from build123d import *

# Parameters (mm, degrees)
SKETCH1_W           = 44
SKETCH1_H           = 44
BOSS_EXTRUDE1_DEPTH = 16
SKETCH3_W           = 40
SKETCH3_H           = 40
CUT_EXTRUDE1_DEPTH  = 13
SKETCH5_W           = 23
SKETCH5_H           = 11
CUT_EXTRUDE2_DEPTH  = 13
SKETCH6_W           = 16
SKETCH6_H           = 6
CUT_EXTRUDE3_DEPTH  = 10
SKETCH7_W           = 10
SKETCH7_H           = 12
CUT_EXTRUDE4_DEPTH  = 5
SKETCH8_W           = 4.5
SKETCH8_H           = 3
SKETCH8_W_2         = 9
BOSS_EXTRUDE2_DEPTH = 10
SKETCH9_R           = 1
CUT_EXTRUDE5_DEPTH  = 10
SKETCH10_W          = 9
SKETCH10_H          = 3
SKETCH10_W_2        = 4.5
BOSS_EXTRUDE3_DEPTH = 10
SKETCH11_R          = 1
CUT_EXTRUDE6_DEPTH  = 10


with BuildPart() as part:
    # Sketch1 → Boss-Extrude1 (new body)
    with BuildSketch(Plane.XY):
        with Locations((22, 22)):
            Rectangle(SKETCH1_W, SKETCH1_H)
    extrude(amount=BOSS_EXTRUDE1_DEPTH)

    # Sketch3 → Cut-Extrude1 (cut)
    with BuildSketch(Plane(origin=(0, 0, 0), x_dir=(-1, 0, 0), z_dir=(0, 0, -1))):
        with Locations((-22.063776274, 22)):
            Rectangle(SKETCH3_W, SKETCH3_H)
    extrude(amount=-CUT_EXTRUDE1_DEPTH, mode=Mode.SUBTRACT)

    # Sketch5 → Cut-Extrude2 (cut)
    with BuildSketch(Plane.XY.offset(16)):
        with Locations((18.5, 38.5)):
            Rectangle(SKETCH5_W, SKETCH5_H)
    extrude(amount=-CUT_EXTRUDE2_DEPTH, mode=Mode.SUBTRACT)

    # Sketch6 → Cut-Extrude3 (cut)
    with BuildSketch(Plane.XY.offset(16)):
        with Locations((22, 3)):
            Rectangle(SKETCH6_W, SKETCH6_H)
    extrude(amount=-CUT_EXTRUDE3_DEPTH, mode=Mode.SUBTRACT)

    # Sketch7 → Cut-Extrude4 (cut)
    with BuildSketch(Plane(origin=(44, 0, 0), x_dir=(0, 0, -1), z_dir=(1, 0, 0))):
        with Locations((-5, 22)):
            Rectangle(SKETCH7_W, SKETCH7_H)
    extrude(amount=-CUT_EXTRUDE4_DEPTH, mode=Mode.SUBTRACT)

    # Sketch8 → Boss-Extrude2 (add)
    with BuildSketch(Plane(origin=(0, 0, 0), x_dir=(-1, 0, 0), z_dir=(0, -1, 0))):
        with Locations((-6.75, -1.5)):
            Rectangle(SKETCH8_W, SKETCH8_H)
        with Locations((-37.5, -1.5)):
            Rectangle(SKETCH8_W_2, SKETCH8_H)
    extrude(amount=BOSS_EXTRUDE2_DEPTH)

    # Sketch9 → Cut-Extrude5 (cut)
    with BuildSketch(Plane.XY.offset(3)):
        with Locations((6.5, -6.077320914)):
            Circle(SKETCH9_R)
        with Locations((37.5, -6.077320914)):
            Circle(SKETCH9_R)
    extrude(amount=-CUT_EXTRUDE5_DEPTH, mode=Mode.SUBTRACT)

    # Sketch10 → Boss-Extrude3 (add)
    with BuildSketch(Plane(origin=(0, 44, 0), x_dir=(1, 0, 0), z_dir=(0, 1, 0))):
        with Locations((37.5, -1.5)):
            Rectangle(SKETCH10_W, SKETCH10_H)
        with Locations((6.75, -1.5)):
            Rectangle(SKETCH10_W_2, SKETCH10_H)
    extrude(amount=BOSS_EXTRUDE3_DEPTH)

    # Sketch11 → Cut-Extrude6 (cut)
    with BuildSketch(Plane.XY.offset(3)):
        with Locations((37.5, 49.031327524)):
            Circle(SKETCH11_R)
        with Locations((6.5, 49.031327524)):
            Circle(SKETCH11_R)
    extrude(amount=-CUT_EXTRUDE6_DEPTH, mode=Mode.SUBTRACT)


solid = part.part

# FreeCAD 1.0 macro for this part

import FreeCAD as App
import Part
import Sketcher
Q = App.Units.Quantity

doc = App.newDocument("Part")
body = doc.addObject("PartDesign::Body", "Body")

# Sketch on XY plane
sketch1 = doc.addObject("Sketcher::SketchObject", "Sketch")
body.addObject(sketch1)
sketch1.AttachmentSupport = (doc.XY_Plane, [""])
sketch1.MapMode = "FlatFace"
sketch1.addGeometry([
    Part.LineSegment(App.Vector(0, 44, 0), App.Vector(0, 0, 0)),
    Part.LineSegment(App.Vector(0, 0, 0), App.Vector(44, 0, 0)),
    Part.LineSegment(App.Vector(44, 0, 0), App.Vector(44, 44, 0)),
    Part.LineSegment(App.Vector(44, 44, 0), App.Vector(0, 44, 0)),
], False)
sketch1.addConstraint([
    Sketcher.Constraint("Coincident", 0, 2, 1, 1),
    Sketcher.Constraint("Coincident", 1, 2, 2, 1),
    Sketcher.Constraint("Coincident", 2, 2, 3, 1),
    Sketcher.Constraint("Coincident", 3, 2, 0, 1),
    Sketcher.Constraint("Vertical", 0),
    Sketcher.Constraint("Horizontal", 1),
    Sketcher.Constraint("Vertical", 2),
    Sketcher.Constraint("Horizontal", 3),
    Sketcher.Constraint("Coincident", 0, 2, -1, 1),
    Sketcher.Constraint("Equal", 3, 0),
    Sketcher.Constraint("DistanceX", 1, 1, 1, 2, Q("44 mm")),
])
pad1 = doc.addObject("PartDesign::Pad", "Pad")
body.addObject(pad1)
pad1.Profile = sketch1
pad1.Length = 16

# Sketch on XY plane
sketch2 = doc.addObject("Sketcher::SketchObject", "Sketch001")
body.addObject(sketch2)
sketch2.AttachmentSupport = (doc.XY_Plane, [""])
sketch2.MapMode = "FlatFace"
sketch2.addGeometry([
    Part.LineSegment(App.Vector(42, 42, 0), App.Vector(42, 2, 0)),
    Part.LineSegment(App.Vector(42, 2, 0), App.Vector(2, 2, 0)),
    Part.LineSegment(App.Vector(2, 2, 0), App.Vector(2, 42, 0)),
    Part.LineSegment(App.Vector(2, 42, 0), App.Vector(42, 42, 0)),
], False)
sketch2.addConstraint([
    Sketcher.Constraint("Coincident", 0, 2, 1, 1),
    Sketcher.Constraint("Coincident", 1, 2, 2, 1),
    Sketcher.Constraint("Coincident", 2, 2, 3, 1),
    Sketcher.Constraint("Coincident", 3, 2, 0, 1),
    Sketcher.Constraint("Vertical", 0),
    Sketcher.Constraint("Horizontal", 1),
    Sketcher.Constraint("Vertical", 2),
    Sketcher.Constraint("Horizontal", 3),
    Sketcher.Constraint("Equal", 3, 0),
    Sketcher.Constraint("DistanceX", 1, 2, 1, 1, Q("40 mm")),
    Sketcher.Constraint("DistanceY", -1, 1, 0, 2, Q("2 mm")),
    Sketcher.Constraint("DistanceX", -1, 1, 0, 2, Q("42.063776 mm")),
])
pocket1 = doc.addObject("PartDesign::Pocket", "Pocket")
body.addObject(pocket1)
pocket1.Profile = sketch2
pocket1.Length = 13
pocket1.Reversed = True

# Sketch on XY plane
sketch3 = doc.addObject("Sketcher::SketchObject", "Sketch002")
body.addObject(sketch3)
sketch3.AttachmentSupport = (doc.XY_Plane, [""])
sketch3.MapMode = "FlatFace"
sketch3.AttachmentOffset = App.Placement(App.Vector(0, 0, 16), App.Rotation())
sketch3.addGeometry([
    Part.LineSegment(App.Vector(7, 44, 0), App.Vector(7, 33, 0)),
    Part.LineSegment(App.Vector(7, 33, 0), App.Vector(30, 33, 0)),
    Part.LineSegment(App.Vector(30, 33, 0), App.Vector(30, 44, 0)),
    Part.LineSegment(App.Vector(30, 44, 0), App.Vector(7, 44, 0)),
], False)
sketch3.addConstraint([
    Sketcher.Constraint("Coincident", 0, 2, 1, 1),
    Sketcher.Constraint("Coincident", 1, 2, 2, 1),
    Sketcher.Constraint("Coincident", 2, 2, 3, 1),
    Sketcher.Constraint("Coincident", 3, 2, 0, 1),
    Sketcher.Constraint("Vertical", 0),
    Sketcher.Constraint("Horizontal", 1),
    Sketcher.Constraint("Vertical", 2),
    Sketcher.Constraint("Horizontal", 3),
    Sketcher.Constraint("DistanceX", 1, 1, 1, 2, Q("23 mm")),
    Sketcher.Constraint("DistanceY", 0, 2, 0, 1, Q("11 mm")),
    Sketcher.Constraint("DistanceX", -1, 1, 0, 2, Q("7 mm")),
    Sketcher.Constraint("DistanceY", -1, 1, 0, 2, Q("33 mm")),
])
pocket2 = doc.addObject("PartDesign::Pocket", "Pocket001")
body.addObject(pocket2)
pocket2.Profile = sketch3
pocket2.Length = 13

# Sketch on XY plane
sketch4 = doc.addObject("Sketcher::SketchObject", "Sketch003")
body.addObject(sketch4)
sketch4.AttachmentSupport = (doc.XY_Plane, [""])
sketch4.MapMode = "FlatFace"
sketch4.AttachmentOffset = App.Placement(App.Vector(0, 0, 16), App.Rotation())
sketch4.addGeometry([
    Part.LineSegment(App.Vector(14, 6, 0), App.Vector(14, 0, 0)),
    Part.LineSegment(App.Vector(14, 0, 0), App.Vector(30, 0, 0)),
    Part.LineSegment(App.Vector(30, 0, 0), App.Vector(30, 6, 0)),
    Part.LineSegment(App.Vector(30, 6, 0), App.Vector(14, 6, 0)),
], False)
sketch4.addConstraint([
    Sketcher.Constraint("Coincident", 0, 2, 1, 1),
    Sketcher.Constraint("Coincident", 1, 2, 2, 1),
    Sketcher.Constraint("Coincident", 2, 2, 3, 1),
    Sketcher.Constraint("Coincident", 3, 2, 0, 1),
    Sketcher.Constraint("Vertical", 0),
    Sketcher.Constraint("Horizontal", 1),
    Sketcher.Constraint("Vertical", 2),
    Sketcher.Constraint("Horizontal", 3),
    Sketcher.Constraint("PointOnObject", 0, 2, -1),
    Sketcher.Constraint("DistanceX", 1, 1, 1, 2, Q("16 mm")),
    Sketcher.Constraint("DistanceY", 0, 2, 0, 1, Q("6 mm")),
    Sketcher.Constraint("DistanceX", -1, 1, 0, 2, Q("14 mm")),
])
pocket3 = doc.addObject("PartDesign::Pocket", "Pocket002")
body.addObject(pocket3)
pocket3.Profile = sketch4
pocket3.Length = 10

# Sketch on YZ plane
sketch5 = doc.addObject("Sketcher::SketchObject", "Sketch004")
body.addObject(sketch5)
sketch5.AttachmentSupport = (doc.YZ_Plane, [""])
sketch5.MapMode = "FlatFace"
sketch5.AttachmentOffset = App.Placement(App.Vector(0, 0, 44), App.Rotation())
sketch5.addGeometry([
    Part.LineSegment(App.Vector(28, 10, 0), App.Vector(16, 10, 0)),
    Part.LineSegment(App.Vector(16, 10, 0), App.Vector(16, 0, 0)),
    Part.LineSegment(App.Vector(16, 0, 0), App.Vector(28, 0, 0)),
    Part.LineSegment(App.Vector(28, 0, 0), App.Vector(28, 10, 0)),
], False)
sketch5.addConstraint([
    Sketcher.Constraint("Coincident", 0, 2, 1, 1),
    Sketcher.Constraint("Coincident", 1, 2, 2, 1),
    Sketcher.Constraint("Coincident", 2, 2, 3, 1),
    Sketcher.Constraint("Coincident", 3, 2, 0, 1),
    Sketcher.Constraint("Horizontal", 0),
    Sketcher.Constraint("Vertical", 1),
    Sketcher.Constraint("Horizontal", 2),
    Sketcher.Constraint("Vertical", 3),
    Sketcher.Constraint("PointOnObject", 1, 2, -1),
    Sketcher.Constraint("DistanceX", 0, 2, 0, 1, Q("12 mm")),
    Sketcher.Constraint("DistanceY", 1, 2, 1, 1, Q("10 mm")),
    Sketcher.Constraint("DistanceX", -1, 1, 0, 2, Q("16 mm")),
])
pocket4 = doc.addObject("PartDesign::Pocket", "Pocket003")
body.addObject(pocket4)
pocket4.Profile = sketch5
pocket4.Length = 5

# Sketch on XZ plane
sketch6 = doc.addObject("Sketcher::SketchObject", "Sketch005")
body.addObject(sketch6)
sketch6.AttachmentSupport = (doc.XZ_Plane, [""])
sketch6.MapMode = "FlatFace"
sketch6.addGeometry([
    Part.LineSegment(App.Vector(9, 0, 0), App.Vector(9, 3, 0)),  # 0
    Part.LineSegment(App.Vector(9, 3, 0), App.Vector(4.5, 3, 0)),  # 1
    Part.LineSegment(App.Vector(4.5, 3, 0), App.Vector(4.5, 0, 0)),  # 2
    Part.LineSegment(App.Vector(4.5, 0, 0), App.Vector(9, 0, 0)),  # 3
    Part.LineSegment(App.Vector(42, 0, 0), App.Vector(42, 3, 0)),  # 4
    Part.LineSegment(App.Vector(42, 3, 0), App.Vector(33, 3, 0)),  # 5
    Part.LineSegment(App.Vector(33, 3, 0), App.Vector(33, 0, 0)),  # 6
    Part.LineSegment(App.Vector(33, 0, 0), App.Vector(42, 0, 0)),  # 7
], False)
sketch6.addConstraint([
    Sketcher.Constraint("Coincident", 0, 2, 1, 1),
    Sketcher.Constraint("Coincident", 1, 2, 2, 1),
    Sketcher.Constraint("Coincident", 2, 2, 3, 1),
    Sketcher.Constraint("Coincident", 3, 2, 0, 1),
    Sketcher.Constraint("Coincident", 4, 2, 5, 1),
    Sketcher.Constraint("Coincident", 5, 2, 6, 1),
    Sketcher.Constraint("Coincident", 6, 2, 7, 1),
    Sketcher.Constraint("Coincident", 7, 2, 4, 1),
    Sketcher.Constraint("Vertical", 0),
    Sketcher.Constraint("Horizontal", 1),
    Sketcher.Constraint("Vertical", 2),
    Sketcher.Constraint("Horizontal", 3),
    Sketcher.Constraint("Vertical", 4),
    Sketcher.Constraint("Horizontal", 5),
    Sketcher.Constraint("Vertical", 6),
    Sketcher.Constraint("Horizontal", 7),
    Sketcher.Constraint("PointOnObject", 2, 2, -1),
    Sketcher.Constraint("PointOnObject", 6, 2, -1),
    Sketcher.Constraint("Horizontal", 1, 2, 4, 2),
    Sketcher.Constraint("DistanceX", 5, 2, 5, 1, Q("9 mm")),
    Sketcher.Constraint("DistanceY", 0, 1, 0, 2, Q("3 mm")),
    Sketcher.Constraint("DistanceX", 1, 2, 1, 1, Q("4.5 mm")),
    Sketcher.Constraint("DistanceX", -1, 1, 0, 2, Q("9 mm")),
    Sketcher.Constraint("DistanceX", -1, 1, 4, 2, Q("42 mm")),
])
pad2 = doc.addObject("PartDesign::Pad", "Pad001")
body.addObject(pad2)
pad2.Profile = sketch6
pad2.Length = 10

# Sketch on XY plane
sketch7 = doc.addObject("Sketcher::SketchObject", "Sketch006")
body.addObject(sketch7)
sketch7.AttachmentSupport = (doc.XY_Plane, [""])
sketch7.MapMode = "FlatFace"
sketch7.AttachmentOffset = App.Placement(App.Vector(0, 0, 3), App.Rotation())
sketch7.addGeometry([
    Part.Circle(App.Vector(6.5, -6.1, 0), App.Vector(0, 0, 1), 1),
    Part.Circle(App.Vector(37.5, -6.1, 0), App.Vector(0, 0, 1), 1),
], False)
sketch7.addConstraint([
    Sketcher.Constraint("Equal", 0, 1),
    Sketcher.Constraint("Horizontal", 0, 3, 1, 3),
    Sketcher.Constraint("Diameter", 0, Q("2 mm")),
    Sketcher.Constraint("DistanceX", 0, 3, 1, 3, Q("31 mm")),
    Sketcher.Constraint("DistanceX", -1, 1, 0, 3, Q("6.5 mm")),
    Sketcher.Constraint("DistanceY", 0, 3, -1, 1, Q("6.077321 mm")),
])
pocket5 = doc.addObject("PartDesign::Pocket", "Pocket004")
body.addObject(pocket5)
pocket5.Profile = sketch7
pocket5.Length = 10

# Sketch on XZ plane
sketch8 = doc.addObject("Sketcher::SketchObject", "Sketch007")
body.addObject(sketch8)
sketch8.AttachmentSupport = (doc.XZ_Plane, [""])
sketch8.MapMode = "FlatFace"
sketch8.AttachmentOffset = App.Placement(App.Vector(0, 0, -44), App.Rotation())
sketch8.addGeometry([
    Part.LineSegment(App.Vector(33, 0, 0), App.Vector(33, 3, 0)),  # 0
    Part.LineSegment(App.Vector(33, 3, 0), App.Vector(42, 3, 0)),  # 1
    Part.LineSegment(App.Vector(42, 3, 0), App.Vector(42, 0, 0)),  # 2
    Part.LineSegment(App.Vector(42, 0, 0), App.Vector(33, 0, 0)),  # 3
    Part.LineSegment(App.Vector(4.5, 0, 0), App.Vector(4.5, 3, 0)),  # 4
    Part.LineSegment(App.Vector(4.5, 3, 0), App.Vector(9, 3, 0)),  # 5
    Part.LineSegment(App.Vector(9, 3, 0), App.Vector(9, 0, 0)),  # 6
    Part.LineSegment(App.Vector(9, 0, 0), App.Vector(4.5, 0, 0)),  # 7
], False)
sketch8.addConstraint([
    Sketcher.Constraint("Coincident", 0, 2, 1, 1),
    Sketcher.Constraint("Coincident", 1, 2, 2, 1),
    Sketcher.Constraint("Coincident", 2, 2, 3, 1),
    Sketcher.Constraint("Coincident", 3, 2, 0, 1),
    Sketcher.Constraint("Coincident", 4, 2, 5, 1),
    Sketcher.Constraint("Coincident", 5, 2, 6, 1),
    Sketcher.Constraint("Coincident", 6, 2, 7, 1),
    Sketcher.Constraint("Coincident", 7, 2, 4, 1),
    Sketcher.Constraint("Vertical", 0),
    Sketcher.Constraint("Horizontal", 1),
    Sketcher.Constraint("Vertical", 2),
    Sketcher.Constraint("Horizontal", 3),
    Sketcher.Constraint("Vertical", 4),
    Sketcher.Constraint("Horizontal", 5),
    Sketcher.Constraint("Vertical", 6),
    Sketcher.Constraint("Horizontal", 7),
    Sketcher.Constraint("PointOnObject", 2, 2, -1),
    Sketcher.Constraint("PointOnObject", 6, 2, -1),
    Sketcher.Constraint("Horizontal", 1, 2, 4, 2),
    Sketcher.Constraint("DistanceX", 1, 1, 1, 2, Q("9 mm")),
    Sketcher.Constraint("DistanceY", 0, 1, 0, 2, Q("3 mm")),
    Sketcher.Constraint("DistanceX", 5, 1, 5, 2, Q("4.5 mm")),
    Sketcher.Constraint("DistanceX", -1, 1, 0, 2, Q("33 mm")),
    Sketcher.Constraint("DistanceX", -1, 1, 5, 2, Q("9 mm")),
])
pad3 = doc.addObject("PartDesign::Pad", "Pad002")
body.addObject(pad3)
pad3.Profile = sketch8
pad3.Length = 10
pad3.Reversed = True

# Sketch on XY plane
sketch9 = doc.addObject("Sketcher::SketchObject", "Sketch008")
body.addObject(sketch9)
sketch9.AttachmentSupport = (doc.XY_Plane, [""])
sketch9.MapMode = "FlatFace"
sketch9.AttachmentOffset = App.Placement(App.Vector(0, 0, 3), App.Rotation())
sketch9.addGeometry([
    Part.Circle(App.Vector(37.5, 49, 0), App.Vector(0, 0, 1), 1),
    Part.Circle(App.Vector(6.5, 49, 0), App.Vector(0, 0, 1), 1),
], False)
sketch9.addConstraint([
    Sketcher.Constraint("Equal", 0, 1),
    Sketcher.Constraint("Horizontal", 0, 3, 1, 3),
    Sketcher.Constraint("Diameter", 0, Q("2 mm")),
    Sketcher.Constraint("DistanceX", 1, 3, 0, 3, Q("31 mm")),
    Sketcher.Constraint("DistanceX", -1, 1, 0, 3, Q("37.5 mm")),
    Sketcher.Constraint("DistanceY", -1, 1, 0, 3, Q("49.031328 mm")),
])
pocket6 = doc.addObject("PartDesign::Pocket", "Pocket005")
body.addObject(pocket6)
pocket6.Profile = sketch9
pocket6.Length = 10

doc.recompute()
